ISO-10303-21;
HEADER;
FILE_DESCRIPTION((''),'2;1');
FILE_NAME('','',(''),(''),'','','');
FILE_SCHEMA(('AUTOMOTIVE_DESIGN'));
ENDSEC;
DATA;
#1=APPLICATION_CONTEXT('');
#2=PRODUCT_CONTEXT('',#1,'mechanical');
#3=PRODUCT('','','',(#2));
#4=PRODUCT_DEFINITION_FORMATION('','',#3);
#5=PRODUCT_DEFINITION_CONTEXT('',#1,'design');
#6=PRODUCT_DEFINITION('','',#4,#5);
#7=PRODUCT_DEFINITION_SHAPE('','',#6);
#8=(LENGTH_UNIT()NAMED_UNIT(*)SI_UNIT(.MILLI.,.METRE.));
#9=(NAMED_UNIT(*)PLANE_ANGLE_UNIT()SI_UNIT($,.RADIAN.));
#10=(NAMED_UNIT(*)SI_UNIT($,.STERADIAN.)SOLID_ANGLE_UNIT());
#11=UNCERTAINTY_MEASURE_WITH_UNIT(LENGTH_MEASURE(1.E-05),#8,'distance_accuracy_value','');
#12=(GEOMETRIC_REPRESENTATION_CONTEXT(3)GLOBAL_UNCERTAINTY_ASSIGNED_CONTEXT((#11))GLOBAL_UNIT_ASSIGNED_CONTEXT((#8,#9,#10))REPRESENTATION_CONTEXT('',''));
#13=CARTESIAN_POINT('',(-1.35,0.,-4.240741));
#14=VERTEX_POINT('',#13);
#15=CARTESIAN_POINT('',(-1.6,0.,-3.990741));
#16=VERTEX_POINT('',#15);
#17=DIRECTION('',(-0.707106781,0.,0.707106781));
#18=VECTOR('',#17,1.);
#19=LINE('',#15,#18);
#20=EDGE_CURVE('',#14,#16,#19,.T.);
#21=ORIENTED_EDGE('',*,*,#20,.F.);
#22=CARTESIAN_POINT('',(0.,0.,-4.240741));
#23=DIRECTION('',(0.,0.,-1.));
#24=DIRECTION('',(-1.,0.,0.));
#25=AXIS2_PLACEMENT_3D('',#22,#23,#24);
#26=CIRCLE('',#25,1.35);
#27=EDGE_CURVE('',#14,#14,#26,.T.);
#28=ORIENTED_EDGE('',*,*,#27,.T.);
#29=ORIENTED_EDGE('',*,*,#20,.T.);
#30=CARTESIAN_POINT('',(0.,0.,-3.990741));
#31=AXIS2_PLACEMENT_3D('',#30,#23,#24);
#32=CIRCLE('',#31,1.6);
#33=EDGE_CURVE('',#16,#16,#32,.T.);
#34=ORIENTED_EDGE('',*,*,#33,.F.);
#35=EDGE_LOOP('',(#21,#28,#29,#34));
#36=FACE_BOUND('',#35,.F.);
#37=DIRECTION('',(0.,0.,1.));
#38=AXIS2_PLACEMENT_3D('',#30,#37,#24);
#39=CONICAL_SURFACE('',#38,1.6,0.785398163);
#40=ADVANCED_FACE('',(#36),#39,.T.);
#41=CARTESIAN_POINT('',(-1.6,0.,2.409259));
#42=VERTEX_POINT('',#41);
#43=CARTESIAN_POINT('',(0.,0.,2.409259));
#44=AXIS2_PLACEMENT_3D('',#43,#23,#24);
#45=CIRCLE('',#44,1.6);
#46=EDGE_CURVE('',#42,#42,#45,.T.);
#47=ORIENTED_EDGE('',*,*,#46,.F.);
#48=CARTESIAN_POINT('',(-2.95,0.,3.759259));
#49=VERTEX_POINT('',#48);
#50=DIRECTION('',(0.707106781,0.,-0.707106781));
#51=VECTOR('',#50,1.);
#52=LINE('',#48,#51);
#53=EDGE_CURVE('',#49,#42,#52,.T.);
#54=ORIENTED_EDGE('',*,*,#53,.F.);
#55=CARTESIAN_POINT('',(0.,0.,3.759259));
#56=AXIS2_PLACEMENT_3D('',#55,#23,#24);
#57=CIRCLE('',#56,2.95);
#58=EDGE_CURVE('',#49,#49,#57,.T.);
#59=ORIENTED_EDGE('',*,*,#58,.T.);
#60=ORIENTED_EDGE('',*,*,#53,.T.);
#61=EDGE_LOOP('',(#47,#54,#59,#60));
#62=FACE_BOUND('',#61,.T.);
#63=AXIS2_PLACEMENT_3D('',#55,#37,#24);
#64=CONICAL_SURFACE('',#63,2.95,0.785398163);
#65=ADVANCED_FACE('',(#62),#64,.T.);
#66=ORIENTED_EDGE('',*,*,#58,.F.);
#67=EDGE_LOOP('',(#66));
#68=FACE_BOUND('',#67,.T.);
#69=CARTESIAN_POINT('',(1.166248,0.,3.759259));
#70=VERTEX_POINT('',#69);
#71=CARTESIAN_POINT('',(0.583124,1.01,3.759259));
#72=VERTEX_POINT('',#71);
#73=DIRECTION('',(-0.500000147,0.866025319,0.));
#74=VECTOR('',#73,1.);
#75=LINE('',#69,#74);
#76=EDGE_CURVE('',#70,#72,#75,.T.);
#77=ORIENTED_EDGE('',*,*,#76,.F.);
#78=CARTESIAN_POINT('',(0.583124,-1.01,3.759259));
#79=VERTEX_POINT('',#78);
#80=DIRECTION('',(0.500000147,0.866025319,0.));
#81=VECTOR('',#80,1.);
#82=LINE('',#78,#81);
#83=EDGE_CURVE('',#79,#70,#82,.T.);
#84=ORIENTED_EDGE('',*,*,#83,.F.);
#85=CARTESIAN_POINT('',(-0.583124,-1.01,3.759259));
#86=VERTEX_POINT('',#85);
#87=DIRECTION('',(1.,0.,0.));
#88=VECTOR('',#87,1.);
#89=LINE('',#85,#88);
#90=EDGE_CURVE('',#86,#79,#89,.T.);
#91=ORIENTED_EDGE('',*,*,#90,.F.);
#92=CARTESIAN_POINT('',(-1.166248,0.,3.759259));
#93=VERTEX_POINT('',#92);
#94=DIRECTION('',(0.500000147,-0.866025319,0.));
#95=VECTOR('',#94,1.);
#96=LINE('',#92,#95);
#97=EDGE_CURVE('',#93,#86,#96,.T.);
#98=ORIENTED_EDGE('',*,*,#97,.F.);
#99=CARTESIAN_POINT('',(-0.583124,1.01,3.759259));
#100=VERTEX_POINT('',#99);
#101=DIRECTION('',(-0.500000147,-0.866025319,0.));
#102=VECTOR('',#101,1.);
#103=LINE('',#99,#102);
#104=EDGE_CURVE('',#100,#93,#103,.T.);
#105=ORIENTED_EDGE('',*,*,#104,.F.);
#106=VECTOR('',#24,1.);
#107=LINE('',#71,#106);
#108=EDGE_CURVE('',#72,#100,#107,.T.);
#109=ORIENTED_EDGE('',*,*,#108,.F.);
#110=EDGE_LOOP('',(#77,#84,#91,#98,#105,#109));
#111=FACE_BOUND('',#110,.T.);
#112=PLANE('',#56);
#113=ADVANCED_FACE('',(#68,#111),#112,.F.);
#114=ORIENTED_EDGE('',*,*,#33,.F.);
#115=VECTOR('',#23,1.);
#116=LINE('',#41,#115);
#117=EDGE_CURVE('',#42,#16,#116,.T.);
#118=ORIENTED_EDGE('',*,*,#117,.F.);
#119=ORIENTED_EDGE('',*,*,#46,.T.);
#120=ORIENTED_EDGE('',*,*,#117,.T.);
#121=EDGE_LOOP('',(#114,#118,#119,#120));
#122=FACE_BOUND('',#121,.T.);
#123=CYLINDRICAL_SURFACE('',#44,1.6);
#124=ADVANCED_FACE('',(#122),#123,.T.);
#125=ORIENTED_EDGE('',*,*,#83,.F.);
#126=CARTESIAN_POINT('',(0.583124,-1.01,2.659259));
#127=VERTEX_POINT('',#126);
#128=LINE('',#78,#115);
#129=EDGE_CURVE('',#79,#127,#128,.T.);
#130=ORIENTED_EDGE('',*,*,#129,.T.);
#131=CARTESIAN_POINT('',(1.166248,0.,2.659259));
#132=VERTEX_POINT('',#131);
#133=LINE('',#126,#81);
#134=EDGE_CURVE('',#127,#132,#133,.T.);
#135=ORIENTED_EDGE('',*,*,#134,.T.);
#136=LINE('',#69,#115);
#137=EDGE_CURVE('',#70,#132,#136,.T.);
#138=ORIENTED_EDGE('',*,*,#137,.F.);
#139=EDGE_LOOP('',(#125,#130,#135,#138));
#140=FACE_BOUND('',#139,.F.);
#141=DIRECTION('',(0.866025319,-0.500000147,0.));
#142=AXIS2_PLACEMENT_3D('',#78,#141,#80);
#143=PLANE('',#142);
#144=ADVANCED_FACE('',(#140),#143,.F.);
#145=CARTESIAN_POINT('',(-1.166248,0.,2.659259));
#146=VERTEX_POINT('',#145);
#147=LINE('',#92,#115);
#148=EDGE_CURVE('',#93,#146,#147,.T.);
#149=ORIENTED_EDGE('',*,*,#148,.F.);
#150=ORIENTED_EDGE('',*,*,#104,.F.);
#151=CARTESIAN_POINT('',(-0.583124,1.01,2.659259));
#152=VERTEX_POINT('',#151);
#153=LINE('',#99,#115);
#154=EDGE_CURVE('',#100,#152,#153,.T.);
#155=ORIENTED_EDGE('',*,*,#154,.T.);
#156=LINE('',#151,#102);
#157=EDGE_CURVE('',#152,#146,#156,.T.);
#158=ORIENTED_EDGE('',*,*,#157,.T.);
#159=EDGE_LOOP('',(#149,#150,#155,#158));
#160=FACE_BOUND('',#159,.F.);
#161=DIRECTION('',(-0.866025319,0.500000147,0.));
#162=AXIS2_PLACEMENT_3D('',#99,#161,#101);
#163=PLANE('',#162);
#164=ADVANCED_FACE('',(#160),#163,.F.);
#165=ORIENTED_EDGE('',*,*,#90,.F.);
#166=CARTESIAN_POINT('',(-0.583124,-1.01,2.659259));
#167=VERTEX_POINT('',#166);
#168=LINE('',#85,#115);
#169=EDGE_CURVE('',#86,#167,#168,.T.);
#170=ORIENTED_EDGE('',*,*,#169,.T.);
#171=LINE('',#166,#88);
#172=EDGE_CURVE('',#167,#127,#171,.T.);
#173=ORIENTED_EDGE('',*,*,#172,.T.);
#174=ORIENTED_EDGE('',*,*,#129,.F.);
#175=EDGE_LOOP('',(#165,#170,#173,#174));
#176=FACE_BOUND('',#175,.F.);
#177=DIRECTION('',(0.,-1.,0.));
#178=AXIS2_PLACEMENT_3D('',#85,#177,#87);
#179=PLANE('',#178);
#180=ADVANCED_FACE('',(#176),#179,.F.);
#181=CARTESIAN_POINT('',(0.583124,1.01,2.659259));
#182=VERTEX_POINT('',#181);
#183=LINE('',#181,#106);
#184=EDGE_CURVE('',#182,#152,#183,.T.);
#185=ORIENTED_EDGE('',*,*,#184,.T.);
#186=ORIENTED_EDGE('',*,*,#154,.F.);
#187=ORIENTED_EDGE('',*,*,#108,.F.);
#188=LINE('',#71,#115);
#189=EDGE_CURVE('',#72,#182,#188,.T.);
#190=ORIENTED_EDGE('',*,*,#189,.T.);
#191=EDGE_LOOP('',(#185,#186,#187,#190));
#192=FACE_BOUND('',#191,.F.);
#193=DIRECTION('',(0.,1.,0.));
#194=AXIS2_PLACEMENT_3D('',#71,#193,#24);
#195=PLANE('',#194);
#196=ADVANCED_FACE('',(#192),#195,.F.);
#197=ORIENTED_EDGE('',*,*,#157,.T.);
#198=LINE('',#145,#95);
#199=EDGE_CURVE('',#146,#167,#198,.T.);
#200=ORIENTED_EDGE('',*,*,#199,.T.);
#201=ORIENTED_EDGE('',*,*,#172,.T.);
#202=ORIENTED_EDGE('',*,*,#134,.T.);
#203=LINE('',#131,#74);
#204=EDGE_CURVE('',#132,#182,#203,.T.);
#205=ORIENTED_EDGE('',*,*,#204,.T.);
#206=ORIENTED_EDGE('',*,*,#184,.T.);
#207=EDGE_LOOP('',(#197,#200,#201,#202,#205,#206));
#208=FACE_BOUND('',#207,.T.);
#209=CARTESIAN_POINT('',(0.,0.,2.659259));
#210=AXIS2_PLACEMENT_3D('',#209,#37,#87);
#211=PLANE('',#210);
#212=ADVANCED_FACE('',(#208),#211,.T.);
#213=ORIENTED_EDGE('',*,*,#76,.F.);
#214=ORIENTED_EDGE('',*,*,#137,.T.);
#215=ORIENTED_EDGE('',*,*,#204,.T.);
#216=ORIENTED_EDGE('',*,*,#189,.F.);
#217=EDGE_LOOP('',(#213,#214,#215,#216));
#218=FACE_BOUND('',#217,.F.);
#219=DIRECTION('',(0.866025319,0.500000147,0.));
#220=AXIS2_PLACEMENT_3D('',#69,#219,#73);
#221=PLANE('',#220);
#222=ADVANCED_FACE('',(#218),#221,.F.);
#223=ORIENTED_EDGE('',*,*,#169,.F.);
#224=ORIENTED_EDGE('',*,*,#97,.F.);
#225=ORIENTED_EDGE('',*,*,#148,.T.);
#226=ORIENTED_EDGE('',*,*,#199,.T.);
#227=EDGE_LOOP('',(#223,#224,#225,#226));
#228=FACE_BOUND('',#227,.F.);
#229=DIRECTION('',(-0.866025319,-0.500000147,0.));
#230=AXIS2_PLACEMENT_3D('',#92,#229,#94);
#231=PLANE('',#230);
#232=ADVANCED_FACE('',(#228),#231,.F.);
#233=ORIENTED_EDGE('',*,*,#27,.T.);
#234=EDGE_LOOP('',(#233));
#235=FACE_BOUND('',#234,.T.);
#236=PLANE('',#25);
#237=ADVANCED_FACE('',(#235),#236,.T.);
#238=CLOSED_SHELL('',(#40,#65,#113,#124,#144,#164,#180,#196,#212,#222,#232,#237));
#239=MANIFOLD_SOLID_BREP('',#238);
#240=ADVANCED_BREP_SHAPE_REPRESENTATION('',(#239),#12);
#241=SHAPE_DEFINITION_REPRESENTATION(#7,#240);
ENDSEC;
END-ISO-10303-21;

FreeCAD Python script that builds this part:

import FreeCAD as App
import Part
import Sketcher
from FreeCAD import Vector
Q = App.Units.Quantity


def edges_at(feature, points):
    """Names of the edges that pass closest to the given points."""
    edges = feature.Shape.Edges
    near = lambda p: min(range(len(edges)), key=lambda i: edges[i].distToShape(Part.Vertex(*p))[0])
    return sorted({f"Edge{near(p) + 1}" for p in points})


def add_polygon(sketch, points):
    """Adds a closed chain of lines whose ends are joined by coincident constraints."""
    first, n = sketch.GeometryCount, len(points)
    for a, b in zip(points, points[1:] + points[:1]):
        sketch.addGeometry(Part.LineSegment(App.Vector(*a, 0), App.Vector(*b, 0)), False)
    for i in range(n):
        sketch.addConstraint(Sketcher.Constraint("Coincident", first + i, 2, first + (i + 1) % n, 1))

doc = App.newDocument("Part")
params = doc.addObject("Spreadsheet::Sheet", "Params")
for row, (alias, value) in enumerate([
    ("sketch1_height", "8 mm"),
    ("sketch1_width", "1.6 mm"),
    ("sketch1_width2", "2.95 mm"),
    ("revolution_angle", "360 deg"),
    ("pocket1_length", "1.1 mm"),
    ("chamfer_size", "0.25 mm"),
], start=1):
    params.set(f"A{row}", alias)
    params.set(f"B{row}", "=" + value)
    params.setAlias(f"B{row}", alias)

body = doc.addObject("PartDesign::Body", "Body")

# Sketch on XZ plane
sketch1 = body.newObject("Sketcher::SketchObject", "Sketch")
sketch1.AttachmentSupport = (doc.getObject("XZ_Plane"), [""])
sketch1.MapMode = "FlatFace"
add_polygon(sketch1, [(-1.6, -4.2), (0, -4.2), (0, 3.8), (-3, 3.8), (-1.6, 2.4)])  # lines 0-4
sketch1.addConstraint([
    Sketcher.Constraint("Horizontal", 0),
    Sketcher.Constraint("Vertical", 1),
    Sketcher.Constraint("Horizontal", 2),
    Sketcher.Constraint("Vertical", 4),
    Sketcher.Constraint("PointOnObject", 0, 2, -2),
    Sketcher.Constraint("DistanceY", 1, 1, 1, 2, 8.0),
    Sketcher.Constraint("Angle", 3, Q("-45 deg")),
    Sketcher.Constraint("DistanceX", 0, 1, 0, 2, 1.6),
    Sketcher.Constraint("DistanceX", 2, 2, 2, 1, 2.95),
    Sketcher.Constraint("DistanceY", 0, 2, -1, 1, 4.240741),
])
sketch1.setExpression("Constraints[10]", "Params.sketch1_height")
sketch1.setExpression("Constraints[12]", "Params.sketch1_width")
sketch1.setExpression("Constraints[13]", "Params.sketch1_width2")
revolution = body.newObject("PartDesign::Revolution", "Revolution")
revolution.Profile = sketch1
revolution.ReferenceAxis = (sketch1, ["V_Axis"])
revolution.setExpression("Angle", "Params.revolution_angle")

# Sketch on XY plane
sketch2 = body.newObject("Sketcher::SketchObject", "Sketch001")
sketch2.AttachmentSupport = (doc.getObject("XY_Plane"), [""])
sketch2.MapMode = "FlatFace"
sketch2.AttachmentOffset = App.Placement(Vector(0, 0, 3.759259), App.Rotation())
add_polygon(sketch2, [(0.6, -1), (1.2, 0), (0.6, 1), (-0.6, 1), (-1.2, 0), (-0.6, -1)])  # lines 0-5
sketch2.addConstraint([
    Sketcher.Constraint("Horizontal", 2),
    Sketcher.Constraint("Horizontal", 5),
    Sketcher.Constraint("Symmetric", 0, 2, 3, 2, -1, 1),
    Sketcher.Constraint("Symmetric", 1, 2, 4, 2, -1, 1),
    Sketcher.Constraint("PointOnObject", 0, 2, -1),
    Sketcher.Constraint("Parallel", 0, 3),
    Sketcher.Constraint("Vertical", 2, 2, 4, 2),
    Sketcher.Constraint("Angle", 0, Q("59.99999 deg")),
    Sketcher.Constraint("DistanceY", -1, 1, 1, 2, 1.01),
    Sketcher.Constraint("DistanceX", 2, 2, 2, 1, 1.166248),
])
pocket1 = body.newObject("PartDesign::Pocket", "Pocket")
pocket1.Profile = sketch2
pocket1.setExpression("Length", "Params.pocket1_length")
doc.recompute()

chamfer = body.newObject("PartDesign::Chamfer", "Chamfer")
chamfer.Base = (pocket1, edges_at(pocket1, [(1.6, 0, -4.241)]))
chamfer.setExpression("Size", "Params.chamfer_size")

doc.recompute()
